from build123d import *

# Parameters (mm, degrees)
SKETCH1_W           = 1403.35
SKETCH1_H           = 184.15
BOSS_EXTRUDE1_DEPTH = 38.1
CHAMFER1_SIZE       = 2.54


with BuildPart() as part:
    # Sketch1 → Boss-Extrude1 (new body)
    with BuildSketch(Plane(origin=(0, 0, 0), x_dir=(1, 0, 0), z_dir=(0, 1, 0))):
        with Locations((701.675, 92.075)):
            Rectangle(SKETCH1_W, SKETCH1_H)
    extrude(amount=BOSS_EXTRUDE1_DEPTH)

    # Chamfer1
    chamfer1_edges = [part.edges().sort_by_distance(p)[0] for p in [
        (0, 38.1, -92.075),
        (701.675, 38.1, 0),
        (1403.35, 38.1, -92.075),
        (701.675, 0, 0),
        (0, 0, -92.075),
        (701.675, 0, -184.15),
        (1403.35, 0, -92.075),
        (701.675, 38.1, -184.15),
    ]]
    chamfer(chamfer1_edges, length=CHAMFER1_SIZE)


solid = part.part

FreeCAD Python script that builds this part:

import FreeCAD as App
import Part
import Sketcher
Q = App.Units.Quantity


def edges_at(feature, points):
    """Names of the edges that pass closest to the given points."""
    edges = feature.Shape.Edges
    near = lambda p: min(range(len(edges)), key=lambda i: edges[i].distToShape(Part.Vertex(*p))[0])
    return sorted({f"Edge{near(p) + 1}" for p in points})


def add_polygon(sketch, points):
    """Adds a closed chain of lines whose ends are joined by coincident constraints."""
    first, n = sketch.GeometryCount, len(points)
    for a, b in zip(points, points[1:] + points[:1]):
        sketch.addGeometry(Part.LineSegment(App.Vector(*a, 0), App.Vector(*b, 0)), False)
    for i in range(n):
        sketch.addConstraint(Sketcher.Constraint("Coincident", first + i, 2, first + (i + 1) % n, 1))

doc = App.newDocument("Part")
body = doc.addObject("PartDesign::Body", "Body")

sketch1 = body.newObject("Sketcher::SketchObject", "Sketch")
sketch1.AttachmentSupport = (doc.getObject("XZ_Plane"), [""])
sketch1.MapMode = "FlatFace"
add_polygon(sketch1, [(0, -184), (0, 0), (1403, 0), (1403, -184)])
sketch1.addConstraint(Sketcher.Constraint("Vertical", 0))
sketch1.addConstraint(Sketcher.Constraint("Horizontal", 1))
sketch1.addConstraint(Sketcher.Constraint("Vertical", 2))
sketch1.addConstraint(Sketcher.Constraint("Horizontal", 3))
sketch1.addConstraint(Sketcher.Constraint("Coincident", 0, 2, -1, 1))
sketch1.addConstraint(Sketcher.Constraint("DistanceX", 1, 1, 1, 2, Q("55.25 in")))
sketch1.addConstraint(Sketcher.Constraint("DistanceY", 0, 1, 0, 2, Q("7.25 in")))
pad1 = body.newObject("PartDesign::Pad", "Pad")
pad1.Profile = sketch1
pad1.Length = Q("1.5 in")
pad1.Reversed = True
doc.recompute()

chamfer = body.newObject("PartDesign::Chamfer", "Chamfer")
chamfer.Base = (pad1, edges_at(pad1, [
    (0, 38.1, -92.075),
    (701.675, 38.1, 0),
    (1403.35, 38.1, -92.075),
    (701.675, 0, 0),
    (0, 0, -92.075),
    (701.675, 0, -184.15),
    (1403.35, 0, -92.075),
    (701.675, 38.1, -184.15),
]))
chamfer.Size = Q("0.1 in")

doc.recompute()
